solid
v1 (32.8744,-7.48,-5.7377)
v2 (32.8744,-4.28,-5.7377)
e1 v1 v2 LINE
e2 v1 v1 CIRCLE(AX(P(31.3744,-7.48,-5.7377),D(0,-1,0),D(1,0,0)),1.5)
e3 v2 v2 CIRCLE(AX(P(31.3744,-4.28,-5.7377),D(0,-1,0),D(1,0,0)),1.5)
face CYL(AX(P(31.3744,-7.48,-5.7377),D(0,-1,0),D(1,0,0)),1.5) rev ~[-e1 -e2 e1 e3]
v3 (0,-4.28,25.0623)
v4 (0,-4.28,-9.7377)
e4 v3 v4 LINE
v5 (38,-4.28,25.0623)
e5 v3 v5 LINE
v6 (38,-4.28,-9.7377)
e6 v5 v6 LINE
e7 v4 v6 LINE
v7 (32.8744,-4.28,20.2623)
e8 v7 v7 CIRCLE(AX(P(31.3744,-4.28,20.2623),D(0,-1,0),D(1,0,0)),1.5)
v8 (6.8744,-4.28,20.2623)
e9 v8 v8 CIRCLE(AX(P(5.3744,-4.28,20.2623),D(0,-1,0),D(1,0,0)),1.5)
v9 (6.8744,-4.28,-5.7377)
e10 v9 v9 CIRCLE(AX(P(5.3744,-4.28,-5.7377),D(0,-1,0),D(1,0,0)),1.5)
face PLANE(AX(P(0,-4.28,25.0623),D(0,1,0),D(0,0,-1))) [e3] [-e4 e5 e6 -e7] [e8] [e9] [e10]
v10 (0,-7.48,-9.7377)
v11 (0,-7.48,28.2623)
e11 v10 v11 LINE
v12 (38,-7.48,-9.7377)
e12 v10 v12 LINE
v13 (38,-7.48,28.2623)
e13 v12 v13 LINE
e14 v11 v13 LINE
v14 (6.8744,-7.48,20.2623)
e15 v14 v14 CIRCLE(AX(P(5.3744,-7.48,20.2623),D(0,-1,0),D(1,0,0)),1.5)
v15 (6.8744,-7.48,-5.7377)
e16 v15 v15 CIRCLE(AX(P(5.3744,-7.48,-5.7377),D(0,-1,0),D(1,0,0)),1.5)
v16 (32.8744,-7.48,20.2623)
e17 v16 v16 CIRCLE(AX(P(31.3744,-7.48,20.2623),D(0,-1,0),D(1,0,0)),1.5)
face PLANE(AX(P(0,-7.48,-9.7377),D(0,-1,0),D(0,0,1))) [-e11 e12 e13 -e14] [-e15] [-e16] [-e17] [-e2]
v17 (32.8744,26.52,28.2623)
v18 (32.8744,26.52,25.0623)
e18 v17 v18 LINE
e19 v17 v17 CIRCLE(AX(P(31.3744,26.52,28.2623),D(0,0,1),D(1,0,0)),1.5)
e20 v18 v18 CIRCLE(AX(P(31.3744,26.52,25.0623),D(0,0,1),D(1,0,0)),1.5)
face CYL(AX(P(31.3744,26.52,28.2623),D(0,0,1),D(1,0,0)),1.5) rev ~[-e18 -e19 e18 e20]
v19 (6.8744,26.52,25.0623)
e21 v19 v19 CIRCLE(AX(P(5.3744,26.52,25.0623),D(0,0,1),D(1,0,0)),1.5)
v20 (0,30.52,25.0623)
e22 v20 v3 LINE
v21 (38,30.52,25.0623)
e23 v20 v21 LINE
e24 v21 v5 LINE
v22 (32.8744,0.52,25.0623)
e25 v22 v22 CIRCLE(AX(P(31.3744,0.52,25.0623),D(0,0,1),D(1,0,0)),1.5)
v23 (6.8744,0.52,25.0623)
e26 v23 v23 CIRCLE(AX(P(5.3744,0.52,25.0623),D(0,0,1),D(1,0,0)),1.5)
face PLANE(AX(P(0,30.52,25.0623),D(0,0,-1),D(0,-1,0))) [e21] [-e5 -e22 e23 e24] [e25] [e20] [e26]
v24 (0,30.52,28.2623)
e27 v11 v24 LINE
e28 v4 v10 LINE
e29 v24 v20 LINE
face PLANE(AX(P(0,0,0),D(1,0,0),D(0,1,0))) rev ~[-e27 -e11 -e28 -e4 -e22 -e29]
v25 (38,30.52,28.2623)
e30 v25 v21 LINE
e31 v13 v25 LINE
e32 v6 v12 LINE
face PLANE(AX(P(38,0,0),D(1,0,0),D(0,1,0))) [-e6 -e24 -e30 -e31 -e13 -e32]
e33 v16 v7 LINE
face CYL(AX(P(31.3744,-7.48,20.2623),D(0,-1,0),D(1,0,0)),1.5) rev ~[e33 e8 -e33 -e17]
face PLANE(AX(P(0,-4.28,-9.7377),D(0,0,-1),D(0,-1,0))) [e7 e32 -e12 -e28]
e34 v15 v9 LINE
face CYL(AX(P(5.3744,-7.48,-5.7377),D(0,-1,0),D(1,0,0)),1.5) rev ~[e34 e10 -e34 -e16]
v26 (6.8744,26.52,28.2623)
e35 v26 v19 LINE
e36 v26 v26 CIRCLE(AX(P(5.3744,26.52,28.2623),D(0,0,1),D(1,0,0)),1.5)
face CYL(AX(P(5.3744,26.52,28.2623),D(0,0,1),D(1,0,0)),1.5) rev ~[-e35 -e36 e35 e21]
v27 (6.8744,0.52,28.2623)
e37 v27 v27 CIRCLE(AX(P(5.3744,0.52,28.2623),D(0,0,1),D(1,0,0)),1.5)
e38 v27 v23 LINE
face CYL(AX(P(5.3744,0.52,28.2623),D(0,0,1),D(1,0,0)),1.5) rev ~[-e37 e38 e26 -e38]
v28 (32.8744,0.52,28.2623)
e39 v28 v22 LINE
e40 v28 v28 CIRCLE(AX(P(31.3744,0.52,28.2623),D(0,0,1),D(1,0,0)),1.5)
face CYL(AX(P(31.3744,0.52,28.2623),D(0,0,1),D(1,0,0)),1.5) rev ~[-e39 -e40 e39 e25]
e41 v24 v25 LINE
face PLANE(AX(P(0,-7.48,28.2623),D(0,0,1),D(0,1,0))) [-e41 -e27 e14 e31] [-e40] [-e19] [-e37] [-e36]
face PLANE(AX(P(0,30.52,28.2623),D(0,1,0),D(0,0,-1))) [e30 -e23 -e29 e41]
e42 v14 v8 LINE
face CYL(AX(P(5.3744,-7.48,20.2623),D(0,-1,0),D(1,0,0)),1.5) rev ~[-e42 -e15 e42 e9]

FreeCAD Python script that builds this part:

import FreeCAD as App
import Part
import Sketcher
Q = App.Units.Quantity


def add_polygon(sketch, points):
    """Adds a closed chain of lines whose ends are joined by coincident constraints."""
    first, n = sketch.GeometryCount, len(points)
    for a, b in zip(points, points[1:] + points[:1]):
        sketch.addGeometry(Part.LineSegment(App.Vector(*a, 0), App.Vector(*b, 0)), False)
    for i in range(n):
        sketch.addConstraint(Sketcher.Constraint("Coincident", first + i, 2, first + (i + 1) % n, 1))

doc = App.newDocument("Part")
body = doc.addObject("PartDesign::Body", "Body")

sketch1 = body.newObject("Sketcher::SketchObject", "Sketch")
sketch1.AttachmentSupport = (doc.getObject("YZ_Plane"), [""])
sketch1.MapMode = "FlatFace"
add_polygon(sketch1, [(30.52, 28.2623), (-7.48, 28.2623), (-7.48, -9.7377), (-4.28, -9.7377), (-4.28, 25.0623), (30.52, 25.0623)])
sketch1.addConstraint([
    Sketcher.Constraint("Horizontal", 0),
    Sketcher.Constraint("Vertical", 1),
    Sketcher.Constraint("Horizontal", 2),
    Sketcher.Constraint("Vertical", 3),
    Sketcher.Constraint("Horizontal", 4),
    Sketcher.Constraint("Vertical", 5),
    Sketcher.Constraint("Equal", 0, 1),
    Sketcher.Constraint("Equal", 4, 3),
    Sketcher.Constraint("DistanceX", 0, 2, 0, 1, Q("38 mm")),
    Sketcher.Constraint("DistanceX", 2, 1, 2, 2, Q("3.2 mm")),
    Sketcher.Constraint("DistanceX", 0, 2, -1, 1, Q("7.48 mm")),
    Sketcher.Constraint("DistanceY", -1, 1, 0, 2, Q("28.2623 mm")),
])
pad1 = body.newObject("PartDesign::Pad", "Pad")
pad1.Profile = sketch1
pad1.Length = 38

sketch2 = body.newObject("Sketcher::SketchObject", "Sketch001")
sketch2.AttachmentSupport = (doc.getObject("XZ_Plane"), [""])
sketch2.MapMode = "FlatFace"
sketch2.AttachmentOffset = App.Placement(App.Vector(0, 0, 7.48), App.Rotation())
sketch2.addGeometry([
    Part.Circle(App.Vector(5.3744, 20.2623, 0), App.Vector(0, 0, 1), 1.5),
    Part.Circle(App.Vector(5.3744, -5.7377, 0), App.Vector(0, 0, 1), 1.5),
    Part.Circle(App.Vector(31.3744, 20.2623, 0), App.Vector(0, 0, 1), 1.5),
    Part.Circle(App.Vector(31.3744, -5.7377, 0), App.Vector(0, 0, 1), 1.5),
], False)
sketch2.addConstraint([
    Sketcher.Constraint("Equal", 0, 1),
    Sketcher.Constraint("Equal", 1, 2),
    Sketcher.Constraint("Equal", 2, 3),
    Sketcher.Constraint("Horizontal", 0, 3, 2, 3),
    Sketcher.Constraint("Horizontal", 1, 3, 3, 3),
    Sketcher.Constraint("Vertical", 0, 3, 1, 3),
    Sketcher.Constraint("Vertical", 2, 3, 3, 3),
    Sketcher.Constraint("Diameter", 0, Q("3 mm")),
    Sketcher.Constraint("DistanceY", 1, 3, 0, 3, Q("26 mm")),
    Sketcher.Constraint("DistanceX", 0, 3, 2, 3, Q("26 mm")),
    Sketcher.Constraint("DistanceX", -1, 1, 0, 3, Q("5.3744 mm")),
    Sketcher.Constraint("DistanceY", -1, 1, 0, 3, Q("20.2623 mm")),
])
pocket1 = body.newObject("PartDesign::Pocket", "Pocket")
pocket1.Profile = sketch2
pocket1.Type = "UpToFirst"

sketch3 = body.newObject("Sketcher::SketchObject", "Sketch002")
sketch3.AttachmentSupport = (doc.getObject("XY_Plane"), [""])
sketch3.MapMode = "FlatFace"
sketch3.AttachmentOffset = App.Placement(App.Vector(0, 0, 28.2623), App.Rotation())
sketch3.addGeometry([
    Part.Circle(App.Vector(5.3744, 26.52, 0), App.Vector(0, 0, 1), 1.5),
    Part.Circle(App.Vector(5.3744, 0.52, 0), App.Vector(0, 0, 1), 1.5),
    Part.Circle(App.Vector(31.3744, 26.52, 0), App.Vector(0, 0, 1), 1.5),
    Part.Circle(App.Vector(31.3744, 0.52, 0), App.Vector(0, 0, 1), 1.5),
], False)
sketch3.addConstraint([
    Sketcher.Constraint("Equal", 0, 1),
    Sketcher.Constraint("Equal", 1, 2),
    Sketcher.Constraint("Equal", 2, 3),
    Sketcher.Constraint("Horizontal", 0, 3, 2, 3),
    Sketcher.Constraint("Horizontal", 1, 3, 3, 3),
    Sketcher.Constraint("Vertical", 0, 3, 1, 3),
    Sketcher.Constraint("Vertical", 2, 3, 3, 3),
    Sketcher.Constraint("Diameter", 0, Q("3 mm")),
    Sketcher.Constraint("DistanceY", 1, 3, 0, 3, Q("26 mm")),
    Sketcher.Constraint("DistanceX", 0, 3, 2, 3, Q("26 mm")),
    Sketcher.Constraint("DistanceY", -1, 1, 0, 3, Q("26.52 mm")),
    Sketcher.Constraint("DistanceX", -1, 1, 0, 3, Q("5.3744 mm")),
])
pocket2 = body.newObject("PartDesign::Pocket", "Pocket001")
pocket2.Profile = sketch3
pocket2.Type = "UpToFirst"

doc.recompute()
